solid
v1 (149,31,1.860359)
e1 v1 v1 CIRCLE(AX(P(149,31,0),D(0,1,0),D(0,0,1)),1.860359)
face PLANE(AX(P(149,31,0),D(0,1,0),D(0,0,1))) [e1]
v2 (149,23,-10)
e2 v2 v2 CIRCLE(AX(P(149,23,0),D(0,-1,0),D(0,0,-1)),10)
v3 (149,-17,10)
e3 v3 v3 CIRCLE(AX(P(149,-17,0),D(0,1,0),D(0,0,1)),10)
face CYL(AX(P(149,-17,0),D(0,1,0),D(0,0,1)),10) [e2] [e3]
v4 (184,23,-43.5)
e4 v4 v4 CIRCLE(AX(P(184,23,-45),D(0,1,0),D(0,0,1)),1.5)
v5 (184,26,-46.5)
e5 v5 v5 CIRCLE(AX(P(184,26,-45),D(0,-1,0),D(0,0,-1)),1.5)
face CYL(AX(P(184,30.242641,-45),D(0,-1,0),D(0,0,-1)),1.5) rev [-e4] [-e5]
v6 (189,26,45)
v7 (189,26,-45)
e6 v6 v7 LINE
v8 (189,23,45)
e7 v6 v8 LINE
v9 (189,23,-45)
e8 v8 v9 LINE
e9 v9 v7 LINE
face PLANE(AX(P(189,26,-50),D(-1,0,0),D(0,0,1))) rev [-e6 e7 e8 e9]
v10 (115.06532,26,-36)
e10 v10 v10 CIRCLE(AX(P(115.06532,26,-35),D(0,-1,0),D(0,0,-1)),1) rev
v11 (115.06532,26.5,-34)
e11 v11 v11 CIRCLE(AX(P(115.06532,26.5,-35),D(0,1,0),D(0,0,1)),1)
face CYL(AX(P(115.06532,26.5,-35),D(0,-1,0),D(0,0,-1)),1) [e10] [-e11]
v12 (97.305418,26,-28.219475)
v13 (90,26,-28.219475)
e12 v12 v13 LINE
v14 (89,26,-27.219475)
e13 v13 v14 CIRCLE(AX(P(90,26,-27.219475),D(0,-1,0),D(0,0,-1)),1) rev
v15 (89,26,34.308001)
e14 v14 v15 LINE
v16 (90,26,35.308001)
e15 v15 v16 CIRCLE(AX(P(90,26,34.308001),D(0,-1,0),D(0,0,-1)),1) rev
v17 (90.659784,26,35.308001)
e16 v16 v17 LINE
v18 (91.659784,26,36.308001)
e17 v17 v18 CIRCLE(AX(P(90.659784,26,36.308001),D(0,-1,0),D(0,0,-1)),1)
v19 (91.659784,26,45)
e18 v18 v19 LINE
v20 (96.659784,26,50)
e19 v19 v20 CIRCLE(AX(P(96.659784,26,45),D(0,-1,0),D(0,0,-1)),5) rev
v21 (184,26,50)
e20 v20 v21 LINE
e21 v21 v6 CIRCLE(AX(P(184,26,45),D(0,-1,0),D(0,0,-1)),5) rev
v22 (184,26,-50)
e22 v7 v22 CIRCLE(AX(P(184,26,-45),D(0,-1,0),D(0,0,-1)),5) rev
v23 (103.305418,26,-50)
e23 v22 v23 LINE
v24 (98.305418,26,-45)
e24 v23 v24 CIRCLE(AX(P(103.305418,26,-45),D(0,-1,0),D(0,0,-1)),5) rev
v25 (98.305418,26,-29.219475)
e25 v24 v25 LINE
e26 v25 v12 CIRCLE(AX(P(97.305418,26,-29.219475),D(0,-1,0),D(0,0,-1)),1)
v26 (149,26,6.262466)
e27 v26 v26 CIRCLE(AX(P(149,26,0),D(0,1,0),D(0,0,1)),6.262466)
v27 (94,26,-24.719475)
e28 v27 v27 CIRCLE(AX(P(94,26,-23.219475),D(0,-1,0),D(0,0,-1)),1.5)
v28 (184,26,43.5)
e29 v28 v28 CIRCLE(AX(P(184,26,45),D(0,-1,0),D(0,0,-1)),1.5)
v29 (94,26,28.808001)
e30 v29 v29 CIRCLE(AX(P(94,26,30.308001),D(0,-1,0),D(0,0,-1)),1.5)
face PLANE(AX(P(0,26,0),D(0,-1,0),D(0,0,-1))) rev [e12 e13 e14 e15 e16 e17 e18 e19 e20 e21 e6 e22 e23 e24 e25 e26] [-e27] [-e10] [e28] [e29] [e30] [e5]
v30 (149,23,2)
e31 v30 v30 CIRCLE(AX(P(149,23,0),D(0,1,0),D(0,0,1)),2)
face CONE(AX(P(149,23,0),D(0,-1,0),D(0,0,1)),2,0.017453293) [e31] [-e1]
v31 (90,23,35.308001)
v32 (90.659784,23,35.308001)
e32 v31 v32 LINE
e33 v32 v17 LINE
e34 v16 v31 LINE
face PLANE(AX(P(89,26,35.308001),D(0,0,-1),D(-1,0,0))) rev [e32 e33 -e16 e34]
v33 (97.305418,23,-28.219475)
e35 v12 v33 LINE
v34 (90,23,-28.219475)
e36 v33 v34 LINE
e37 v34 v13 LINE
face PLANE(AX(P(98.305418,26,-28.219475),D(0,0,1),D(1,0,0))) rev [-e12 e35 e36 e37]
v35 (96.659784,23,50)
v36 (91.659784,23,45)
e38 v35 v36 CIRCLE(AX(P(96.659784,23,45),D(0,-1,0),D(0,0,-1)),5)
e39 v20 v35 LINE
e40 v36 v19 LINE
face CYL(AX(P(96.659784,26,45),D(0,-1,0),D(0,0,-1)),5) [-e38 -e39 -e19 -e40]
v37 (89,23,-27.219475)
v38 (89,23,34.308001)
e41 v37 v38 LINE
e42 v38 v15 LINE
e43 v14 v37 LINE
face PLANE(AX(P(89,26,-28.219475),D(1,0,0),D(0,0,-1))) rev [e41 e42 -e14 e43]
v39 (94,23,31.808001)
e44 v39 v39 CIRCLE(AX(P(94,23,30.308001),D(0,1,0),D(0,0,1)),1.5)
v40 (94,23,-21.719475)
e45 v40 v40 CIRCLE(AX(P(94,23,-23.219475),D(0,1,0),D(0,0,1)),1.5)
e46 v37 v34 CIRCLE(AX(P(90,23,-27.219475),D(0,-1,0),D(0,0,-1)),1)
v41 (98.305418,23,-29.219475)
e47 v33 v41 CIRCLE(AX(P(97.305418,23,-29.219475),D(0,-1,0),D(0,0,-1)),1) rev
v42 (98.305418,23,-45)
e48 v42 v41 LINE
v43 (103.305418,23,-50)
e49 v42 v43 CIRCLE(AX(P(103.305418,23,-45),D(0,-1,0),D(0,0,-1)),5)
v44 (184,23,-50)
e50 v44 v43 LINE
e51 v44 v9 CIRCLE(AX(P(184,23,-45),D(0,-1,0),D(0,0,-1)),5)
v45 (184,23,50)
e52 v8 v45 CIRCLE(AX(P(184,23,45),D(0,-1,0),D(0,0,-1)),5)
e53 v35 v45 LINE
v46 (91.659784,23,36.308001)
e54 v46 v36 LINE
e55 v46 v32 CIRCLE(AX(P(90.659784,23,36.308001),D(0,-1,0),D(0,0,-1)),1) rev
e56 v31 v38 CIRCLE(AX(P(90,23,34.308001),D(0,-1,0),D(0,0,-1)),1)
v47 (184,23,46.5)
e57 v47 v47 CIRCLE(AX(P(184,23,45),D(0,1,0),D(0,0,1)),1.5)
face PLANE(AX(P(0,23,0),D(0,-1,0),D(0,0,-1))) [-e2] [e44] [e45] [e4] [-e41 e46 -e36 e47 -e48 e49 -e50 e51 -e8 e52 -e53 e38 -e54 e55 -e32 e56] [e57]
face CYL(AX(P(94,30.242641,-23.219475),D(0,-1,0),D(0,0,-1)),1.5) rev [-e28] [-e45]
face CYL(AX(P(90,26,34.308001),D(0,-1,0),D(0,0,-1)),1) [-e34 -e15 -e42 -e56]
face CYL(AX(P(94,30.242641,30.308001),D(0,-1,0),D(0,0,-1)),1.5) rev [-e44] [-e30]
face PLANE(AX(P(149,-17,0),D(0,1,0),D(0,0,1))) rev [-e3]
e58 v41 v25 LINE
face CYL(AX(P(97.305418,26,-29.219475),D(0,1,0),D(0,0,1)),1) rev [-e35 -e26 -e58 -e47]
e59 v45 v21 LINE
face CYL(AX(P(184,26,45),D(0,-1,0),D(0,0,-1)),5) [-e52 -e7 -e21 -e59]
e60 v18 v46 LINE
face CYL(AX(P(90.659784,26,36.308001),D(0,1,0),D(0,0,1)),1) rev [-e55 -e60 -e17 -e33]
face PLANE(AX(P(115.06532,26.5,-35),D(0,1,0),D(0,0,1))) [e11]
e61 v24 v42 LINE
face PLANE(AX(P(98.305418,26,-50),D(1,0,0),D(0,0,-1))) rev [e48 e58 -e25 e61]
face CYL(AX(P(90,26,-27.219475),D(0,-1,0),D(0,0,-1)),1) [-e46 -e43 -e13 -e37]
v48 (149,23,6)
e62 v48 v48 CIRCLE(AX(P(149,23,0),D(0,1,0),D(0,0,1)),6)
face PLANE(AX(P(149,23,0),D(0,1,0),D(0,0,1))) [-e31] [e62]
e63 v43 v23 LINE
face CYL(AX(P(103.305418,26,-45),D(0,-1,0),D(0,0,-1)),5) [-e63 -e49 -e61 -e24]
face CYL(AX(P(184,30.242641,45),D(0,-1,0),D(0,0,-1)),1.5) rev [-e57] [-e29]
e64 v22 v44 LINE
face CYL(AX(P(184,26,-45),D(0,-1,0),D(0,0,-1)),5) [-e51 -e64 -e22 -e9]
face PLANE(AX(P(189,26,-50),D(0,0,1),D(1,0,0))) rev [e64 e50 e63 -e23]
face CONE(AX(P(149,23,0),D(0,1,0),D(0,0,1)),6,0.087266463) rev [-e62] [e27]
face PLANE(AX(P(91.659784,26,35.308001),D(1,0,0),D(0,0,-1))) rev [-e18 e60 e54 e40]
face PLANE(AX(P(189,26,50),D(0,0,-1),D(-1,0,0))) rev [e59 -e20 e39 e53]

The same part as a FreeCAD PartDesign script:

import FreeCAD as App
import Part
import Sketcher

V = App.Vector


def edges_at(feature, points):
    """Names of the edges that pass closest to the given points."""
    edges = feature.Shape.Edges
    near = lambda p: min(range(len(edges)), key=lambda i: edges[i].distToShape(Part.Vertex(*p))[0])
    return sorted({f"Edge{near(p) + 1}" for p in points})

doc = App.newDocument("Part")
body = doc.addObject("PartDesign::Body", "Body")

sketch1 = doc.addObject("Sketcher::SketchObject", "Sketch")
body.addObject(sketch1)
sketch1.AttachmentSupport = (doc.XZ_Plane, [""])
sketch1.MapMode = "FlatFace"
sketch1.AttachmentOffset = App.Placement(V(0, 0, -23), App.Rotation())
sketch1.addGeometry(Part.LineSegment(V(98.3, -50, 0), V(98.3, -28.2, 0)), False)
sketch1.addGeometry(Part.LineSegment(V(98.3, -28.2, 0), V(89, -28.2, 0)), False)
sketch1.addGeometry(Part.LineSegment(V(89, -28.2, 0), V(89, 35.3, 0)), False)
sketch1.addGeometry(Part.LineSegment(V(89, 35.3, 0), V(91.7, 35.3, 0)), False)
sketch1.addGeometry(Part.LineSegment(V(91.7, 35.3, 0), V(91.7, 50, 0)), False)
sketch1.addGeometry(Part.LineSegment(V(91.7, 50, 0), V(189, 50, 0)), False)
sketch1.addGeometry(Part.LineSegment(V(189, 50, 0), V(189, -50, 0)), False)
sketch1.addGeometry(Part.LineSegment(V(189, -50, 0), V(98.3, -50, 0)), False)
sketch1.addConstraint(Sketcher.Constraint("Coincident", 0, 2, 1, 1))
sketch1.addConstraint(Sketcher.Constraint("Coincident", 1, 2, 2, 1))
sketch1.addConstraint(Sketcher.Constraint("Coincident", 2, 2, 3, 1))
sketch1.addConstraint(Sketcher.Constraint("Coincident", 3, 2, 4, 1))
sketch1.addConstraint(Sketcher.Constraint("Coincident", 4, 2, 5, 1))
sketch1.addConstraint(Sketcher.Constraint("Coincident", 5, 2, 6, 1))
sketch1.addConstraint(Sketcher.Constraint("Coincident", 6, 2, 7, 1))
sketch1.addConstraint(Sketcher.Constraint("Coincident", 7, 2, 0, 1))
sketch1.addConstraint(Sketcher.Constraint("Vertical", 0))
sketch1.addConstraint(Sketcher.Constraint("Horizontal", 1))
sketch1.addConstraint(Sketcher.Constraint("Vertical", 2))
sketch1.addConstraint(Sketcher.Constraint("Horizontal", 3))
sketch1.addConstraint(Sketcher.Constraint("Vertical", 4))
sketch1.addConstraint(Sketcher.Constraint("Horizontal", 5))
sketch1.addConstraint(Sketcher.Constraint("Vertical", 6))
sketch1.addConstraint(Sketcher.Constraint("Horizontal", 7))
sketch1.addConstraint(Sketcher.Constraint("DistanceY", 6, 2, 6, 1, 100.0))
sketch1.addConstraint(Sketcher.Constraint("DistanceX", -1, 1, 1, 2, 89.0))
sketch1.addConstraint(Sketcher.Constraint("DistanceY", -1, 1, 4, 2, 50.0))
sketch1.addConstraint(Sketcher.Constraint("DistanceX", -1, 1, 5, 2, 189.0))
sketch1.addConstraint(Sketcher.Constraint("DistanceY", 4, 1, 4, 2, 14.691999))
sketch1.addConstraint(Sketcher.Constraint("DistanceX", 1, 2, 1, 1, 9.305418))
sketch1.addConstraint(Sketcher.Constraint("DistanceX", 3, 1, 3, 2, 2.659784))
sketch1.addConstraint(Sketcher.Constraint("DistanceY", 0, 1, 0, 2, 21.780525))
pad1 = doc.addObject("PartDesign::Pad", "Pad")
body.addObject(pad1)
pad1.Profile = sketch1
pad1.Length = 3
pad1.Reversed = True
doc.recompute()

fillet = doc.addObject("PartDesign::Fillet", "Fillet")
body.addObject(fillet)
fillet.Base = (pad1, edges_at(pad1, [
    (189, 24.5, 50),
    (91.66, 24.5, 50),
    (98.305, 24.5, -50),
    (189, 24.5, -50),
]))
fillet.Radius = 5
doc.recompute()

fillet2 = doc.addObject("PartDesign::Fillet", "Fillet001")
body.addObject(fillet2)
fillet2.Base = (fillet, edges_at(fillet, [
    (91.66, 24.5, 35.308),
    (89, 24.5, 35.308),
    (89, 24.5, -28.219),
    (98.305, 24.5, -28.219),
]))
fillet2.Radius = 1

sketch2 = doc.addObject("Sketcher::SketchObject", "Sketch001")
body.addObject(sketch2)
sketch2.AttachmentSupport = (doc.XZ_Plane, [""])
sketch2.MapMode = "FlatFace"
sketch2.AttachmentOffset = App.Placement(V(0, 0, -23), App.Rotation())
sketch2.addGeometry(Part.Circle(V(184, 45, 0), V(0, 0, 1), 1.5), False)
sketch2.addGeometry(Part.Circle(V(94, 30.3, 0), V(0, 0, 1), 1.5), False)
sketch2.addGeometry(Part.Circle(V(94, -23.2, 0), V(0, 0, 1), 1.5), False)
sketch2.addGeometry(Part.Circle(V(184, -45, 0), V(0, 0, 1), 1.5), False)
sketch2.addConstraint(Sketcher.Constraint("Equal", 0, 1))
sketch2.addConstraint(Sketcher.Constraint("Equal", 1, 2))
sketch2.addConstraint(Sketcher.Constraint("Equal", 2, 3))
sketch2.addConstraint(Sketcher.Constraint("Symmetric", 0, 3, 3, 3, -1))
sketch2.addConstraint(Sketcher.Constraint("Vertical", 1, 3, 2, 3))
sketch2.addConstraint(Sketcher.Constraint("Diameter", 0, 3.0))
sketch2.addConstraint(Sketcher.Constraint("DistanceX", -1, 1, 0, 3, 184.0))
sketch2.addConstraint(Sketcher.Constraint("DistanceY", -1, 1, 0, 3, 45.0))
sketch2.addConstraint(Sketcher.Constraint("DistanceX", -1, 1, 1, 3, 94.0))
sketch2.addConstraint(Sketcher.Constraint("DistanceY", -1, 1, 1, 3, 30.308001))
sketch2.addConstraint(Sketcher.Constraint("DistanceY", 2, 3, -1, 1, 23.219475))
pocket1 = doc.addObject("PartDesign::Pocket", "Pocket")
body.addObject(pocket1)
pocket1.Profile = sketch2
pocket1.Length = 3

sketch3 = doc.addObject("Sketcher::SketchObject", "Sketch002")
body.addObject(sketch3)
sketch3.AttachmentSupport = (doc.XZ_Plane, [""])
sketch3.MapMode = "FlatFace"
sketch3.AttachmentOffset = App.Placement(V(0, 0, -23), App.Rotation())
sketch3.addGeometry(Part.Circle(V(149, 0, 0), V(0, 0, 1), 10), False)
sketch3.addConstraint(Sketcher.Constraint("PointOnObject", 0, 3, -1))
sketch3.addConstraint(Sketcher.Constraint("Diameter", 0, 20.0))
sketch3.addConstraint(Sketcher.Constraint("DistanceX", -1, 1, 0, 3, 149.0))
pad2 = doc.addObject("PartDesign::Pad", "Pad001")
body.addObject(pad2)
pad2.Profile = sketch3
pad2.Length = 40

sketch4 = doc.addObject("Sketcher::SketchObject", "Sketch003")
body.addObject(sketch4)
sketch4.AttachmentSupport = (doc.XZ_Plane, [""])
sketch4.MapMode = "FlatFace"
sketch4.AttachmentOffset = App.Placement(V(0, 0, -23), App.Rotation())
sketch4.addGeometry(Part.Circle(V(149, 0, 0), V(0, 0, 1), 6), False)
sketch4.addConstraint(Sketcher.Constraint("PointOnObject", 0, 3, -1))
sketch4.addConstraint(Sketcher.Constraint("Diameter", 0, 12.0))
sketch4.addConstraint(Sketcher.Constraint("DistanceX", -1, 1, 0, 3, 149.0))
pocket2 = doc.addObject("PartDesign::Pocket", "Pocket001")
body.addObject(pocket2)
pocket2.Profile = sketch4
pocket2.Length = 3
pocket2.TaperAngle = 5

sketch5 = doc.addObject("Sketcher::SketchObject", "Sketch004")
body.addObject(sketch5)
sketch5.AttachmentSupport = (doc.XZ_Plane, [""])
sketch5.MapMode = "FlatFace"
sketch5.AttachmentOffset = App.Placement(V(0, 0, -23), App.Rotation())
sketch5.addGeometry(Part.Circle(V(149, 0, 0), V(0, 0, 1), 2), False)
sketch5.addConstraint(Sketcher.Constraint("PointOnObject", 0, 3, -1))
sketch5.addConstraint(Sketcher.Constraint("Diameter", 0, 4.0))
sketch5.addConstraint(Sketcher.Constraint("DistanceX", -1, 1, 0, 3, 149.0))
pad3 = doc.addObject("PartDesign::Pad", "Pad002")
body.addObject(pad3)
pad3.Profile = sketch5
pad3.Length = 8
pad3.Reversed = True
pad3.TaperAngle = -1

sketch6 = doc.addObject("Sketcher::SketchObject", "Sketch005")
body.addObject(sketch6)
sketch6.AttachmentSupport = (doc.XZ_Plane, [""])
sketch6.MapMode = "FlatFace"
sketch6.AttachmentOffset = App.Placement(V(0, 0, -26), App.Rotation())
sketch6.addGeometry(Part.Circle(V(115.1, -35, 0), V(0, 0, 1), 1), False)
sketch6.addConstraint(Sketcher.Constraint("Diameter", 0, 2.0))
sketch6.addConstraint(Sketcher.Constraint("DistanceY", 0, 3, -1, 1, 35.0))
sketch6.addConstraint(Sketcher.Constraint("DistanceX", -1, 1, 0, 3, 115.06532))
pad4 = doc.addObject("PartDesign::Pad", "Pad003")
body.addObject(pad4)
pad4.Profile = sketch6
pad4.Length = 0.5
pad4.Reversed = True

doc.recompute()
